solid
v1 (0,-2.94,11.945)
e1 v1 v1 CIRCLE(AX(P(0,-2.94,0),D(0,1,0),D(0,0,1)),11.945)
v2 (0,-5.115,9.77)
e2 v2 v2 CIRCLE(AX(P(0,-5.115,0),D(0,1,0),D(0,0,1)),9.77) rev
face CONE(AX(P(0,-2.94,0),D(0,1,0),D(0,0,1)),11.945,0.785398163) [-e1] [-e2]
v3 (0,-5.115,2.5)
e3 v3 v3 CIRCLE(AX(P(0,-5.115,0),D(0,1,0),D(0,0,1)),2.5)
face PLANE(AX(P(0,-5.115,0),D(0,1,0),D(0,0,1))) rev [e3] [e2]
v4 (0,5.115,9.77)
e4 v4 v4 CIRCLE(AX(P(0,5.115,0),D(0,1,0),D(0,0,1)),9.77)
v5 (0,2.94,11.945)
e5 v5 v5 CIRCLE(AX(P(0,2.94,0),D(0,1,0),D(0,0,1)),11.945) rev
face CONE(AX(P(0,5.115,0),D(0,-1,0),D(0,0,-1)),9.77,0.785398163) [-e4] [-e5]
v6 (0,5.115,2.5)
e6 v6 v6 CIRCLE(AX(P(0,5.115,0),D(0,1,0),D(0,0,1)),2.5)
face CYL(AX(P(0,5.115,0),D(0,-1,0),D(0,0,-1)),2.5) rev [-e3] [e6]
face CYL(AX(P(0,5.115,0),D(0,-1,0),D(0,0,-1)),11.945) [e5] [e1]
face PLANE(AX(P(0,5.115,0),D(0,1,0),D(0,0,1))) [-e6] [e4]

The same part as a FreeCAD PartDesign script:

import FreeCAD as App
import Part
import Sketcher
Q = App.Units.Quantity


def edges_at(feature, points):
    """Names of the edges that pass closest to the given points."""
    edges = feature.Shape.Edges
    near = lambda p: min(range(len(edges)), key=lambda i: edges[i].distToShape(Part.Vertex(*p))[0])
    return sorted({f"Edge{near(p) + 1}" for p in points})

doc = App.newDocument("Part")
body = doc.addObject("PartDesign::Body", "Body")

# Sketch on XZ plane
sketch1 = body.newObject("Sketcher::SketchObject", "Sketch")
sketch1.AttachmentSupport = (doc.getObject("XZ_Plane"), [""])
sketch1.MapMode = "FlatFace"
sketch1.addGeometry([
    Part.Circle(App.Vector(0, 0, 0), App.Vector(0, 0, 1), 11.945),
    Part.Circle(App.Vector(0, 0, 0), App.Vector(0, 0, 1), 2.5),
], False)
sketch1.addConstraint([
    Sketcher.Constraint("Coincident", 0, 3, -1, 1),
    Sketcher.Constraint("Coincident", 1, 3, -1, 1),
    Sketcher.Constraint("Diameter", 1, Q("5 mm")),
    Sketcher.Constraint("Diameter", 0, Q("23.89 mm")),
])
pad1 = body.newObject("PartDesign::Pad", "Pad")
pad1.Profile = sketch1
pad1.Length = 10.23
pad1.Midplane = True
doc.recompute()

chamfer = body.newObject("PartDesign::Chamfer", "Chamfer")
chamfer.Base = (pad1, edges_at(pad1, [(0, -5.115, -11.945), (0, 5.115, -11.945)]))
chamfer.Size = 2.175

doc.recompute()
